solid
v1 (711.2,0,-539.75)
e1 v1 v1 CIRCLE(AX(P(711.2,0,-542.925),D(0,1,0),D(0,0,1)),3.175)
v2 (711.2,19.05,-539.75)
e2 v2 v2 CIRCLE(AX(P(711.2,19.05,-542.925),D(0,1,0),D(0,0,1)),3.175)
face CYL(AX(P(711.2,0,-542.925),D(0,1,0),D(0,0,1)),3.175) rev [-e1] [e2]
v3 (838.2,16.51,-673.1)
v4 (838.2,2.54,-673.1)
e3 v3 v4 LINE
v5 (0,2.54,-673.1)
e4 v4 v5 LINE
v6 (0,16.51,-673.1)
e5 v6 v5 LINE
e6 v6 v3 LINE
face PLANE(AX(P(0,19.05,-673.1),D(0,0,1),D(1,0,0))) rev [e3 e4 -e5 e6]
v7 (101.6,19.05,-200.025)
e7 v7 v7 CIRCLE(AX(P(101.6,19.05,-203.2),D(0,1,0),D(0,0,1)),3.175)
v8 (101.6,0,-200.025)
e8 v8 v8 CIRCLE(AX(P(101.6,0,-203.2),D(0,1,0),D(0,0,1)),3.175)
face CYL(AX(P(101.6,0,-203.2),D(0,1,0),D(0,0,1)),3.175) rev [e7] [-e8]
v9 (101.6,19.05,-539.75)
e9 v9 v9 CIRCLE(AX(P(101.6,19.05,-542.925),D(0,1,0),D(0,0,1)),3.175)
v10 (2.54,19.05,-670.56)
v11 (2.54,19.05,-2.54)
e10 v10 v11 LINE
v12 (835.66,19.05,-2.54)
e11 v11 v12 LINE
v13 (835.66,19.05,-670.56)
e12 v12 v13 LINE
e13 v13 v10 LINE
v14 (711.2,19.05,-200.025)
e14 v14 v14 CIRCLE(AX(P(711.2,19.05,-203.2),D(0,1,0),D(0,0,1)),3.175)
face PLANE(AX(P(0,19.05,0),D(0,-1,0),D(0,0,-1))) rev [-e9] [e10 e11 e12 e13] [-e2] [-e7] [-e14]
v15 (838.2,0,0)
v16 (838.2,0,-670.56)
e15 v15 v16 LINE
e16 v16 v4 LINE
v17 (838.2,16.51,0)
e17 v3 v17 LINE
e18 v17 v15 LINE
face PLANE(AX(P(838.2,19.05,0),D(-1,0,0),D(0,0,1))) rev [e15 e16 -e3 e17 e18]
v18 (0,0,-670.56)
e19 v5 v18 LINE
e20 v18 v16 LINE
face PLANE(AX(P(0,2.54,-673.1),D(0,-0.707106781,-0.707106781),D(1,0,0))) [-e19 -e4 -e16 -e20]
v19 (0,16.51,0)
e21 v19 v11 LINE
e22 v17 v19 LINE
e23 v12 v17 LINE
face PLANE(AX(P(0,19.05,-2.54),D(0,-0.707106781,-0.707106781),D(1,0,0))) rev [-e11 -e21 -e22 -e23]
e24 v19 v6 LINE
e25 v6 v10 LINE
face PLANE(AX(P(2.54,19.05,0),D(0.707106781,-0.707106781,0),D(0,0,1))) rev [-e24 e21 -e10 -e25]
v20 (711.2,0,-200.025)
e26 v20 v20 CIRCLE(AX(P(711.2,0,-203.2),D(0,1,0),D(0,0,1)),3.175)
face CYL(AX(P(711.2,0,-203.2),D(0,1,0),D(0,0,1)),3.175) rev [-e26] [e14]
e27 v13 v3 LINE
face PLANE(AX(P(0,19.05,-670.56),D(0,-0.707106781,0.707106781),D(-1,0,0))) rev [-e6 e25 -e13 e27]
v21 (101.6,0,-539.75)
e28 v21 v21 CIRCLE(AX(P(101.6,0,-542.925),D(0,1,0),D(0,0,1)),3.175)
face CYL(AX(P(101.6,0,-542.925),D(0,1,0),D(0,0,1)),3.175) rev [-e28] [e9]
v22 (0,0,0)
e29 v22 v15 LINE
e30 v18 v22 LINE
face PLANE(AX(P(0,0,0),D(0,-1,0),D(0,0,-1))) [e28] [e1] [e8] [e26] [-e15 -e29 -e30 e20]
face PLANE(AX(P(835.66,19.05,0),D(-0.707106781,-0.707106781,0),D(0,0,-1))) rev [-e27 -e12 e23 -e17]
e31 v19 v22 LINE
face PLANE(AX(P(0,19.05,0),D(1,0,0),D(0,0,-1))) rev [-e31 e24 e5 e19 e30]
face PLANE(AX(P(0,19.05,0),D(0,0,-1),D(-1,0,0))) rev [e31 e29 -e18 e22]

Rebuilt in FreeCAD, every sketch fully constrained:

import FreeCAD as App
import Part
import Sketcher
Q = App.Units.Quantity


def edges_at(feature, points):
    """Names of the edges that pass closest to the given points."""
    edges = feature.Shape.Edges
    near = lambda p: min(range(len(edges)), key=lambda i: edges[i].distToShape(Part.Vertex(*p))[0])
    return sorted({f"Edge{near(p) + 1}" for p in points})


def add_polygon(sketch, points):
    """Adds a closed chain of lines whose ends are joined by coincident constraints."""
    first, n = sketch.GeometryCount, len(points)
    for a, b in zip(points, points[1:] + points[:1]):
        sketch.addGeometry(Part.LineSegment(App.Vector(*a, 0), App.Vector(*b, 0)), False)
    for i in range(n):
        sketch.addConstraint(Sketcher.Constraint("Coincident", first + i, 2, first + (i + 1) % n, 1))

doc = App.newDocument("Part")
body = doc.addObject("PartDesign::Body", "Body")

sketch1 = doc.addObject("Sketcher::SketchObject", "Sketch")
body.addObject(sketch1)
sketch1.AttachmentSupport = (doc.XZ_Plane, [""])
sketch1.MapMode = "FlatFace"
add_polygon(sketch1, [(0, -673), (0, 0), (838, 0), (838, -673)])
sketch1.addConstraint([
    Sketcher.Constraint("Vertical", 0),
    Sketcher.Constraint("Horizontal", 1),
    Sketcher.Constraint("Vertical", 2),
    Sketcher.Constraint("Horizontal", 3),
    Sketcher.Constraint("Coincident", 0, 2, -1, 1),
    Sketcher.Constraint("DistanceX", 1, 1, 1, 2, Q("33 in")),
    Sketcher.Constraint("DistanceY", 0, 1, 0, 2, Q("26.5 in")),
])
pad1 = doc.addObject("PartDesign::Pad", "Pad")
body.addObject(pad1)
pad1.Profile = sketch1
pad1.Length = Q("0.75 in")
pad1.Reversed = True
doc.recompute()

chamfer = doc.addObject("PartDesign::Chamfer", "Chamfer")
body.addObject(chamfer)
chamfer.Base = (pad1, edges_at(pad1, [
    (838.2, 19.05, -336.55),
    (419.1, 19.05, -673.1),
    (0, 19.05, -336.55),
    (419.1, 19.05, 0),
]))
chamfer.Size = Q("0.1 in")
doc.recompute()

chamfer2 = doc.addObject("PartDesign::Chamfer", "Chamfer001")
body.addObject(chamfer2)
chamfer2.Base = (chamfer, edges_at(chamfer, [(419.1, 0, -673.1)]))
chamfer2.Size = Q("0.1 in")

sketch2 = doc.addObject("Sketcher::SketchObject", "Sketch001")
body.addObject(sketch2)
sketch2.AttachmentSupport = (doc.XZ_Plane, [""])
sketch2.MapMode = "FlatFace"
sketch2.AttachmentOffset = App.Placement(App.Vector(0, 0, -0.75 * 25.4), App.Rotation())
sketch2.addGeometry([
    Part.Circle(App.Vector(101.6, -542.9, 0), App.Vector(0, 0, 1), 3.2),
    Part.Circle(App.Vector(101.6, -203.2, 0), App.Vector(0, 0, 1), 3.2),
    Part.Circle(App.Vector(711.2, -542.9, 0), App.Vector(0, 0, 1), 3.2),
    Part.Circle(App.Vector(711.2, -203.2, 0), App.Vector(0, 0, 1), 3.2),
], False)
sketch2.addConstraint([
    Sketcher.Constraint("Equal", 0, 1),
    Sketcher.Constraint("Equal", 1, 2),
    Sketcher.Constraint("Equal", 2, 3),
    Sketcher.Constraint("Horizontal", 0, 3, 2, 3),
    Sketcher.Constraint("Horizontal", 1, 3, 3, 3),
    Sketcher.Constraint("Vertical", 0, 3, 1, 3),
    Sketcher.Constraint("Vertical", 2, 3, 3, 3),
    Sketcher.Constraint("Diameter", 0, Q("0.25 in")),
    Sketcher.Constraint("DistanceX", -1, 1, 0, 3, Q("4 in")),
    Sketcher.Constraint("DistanceY", 1, 3, -1, 1, Q("8 in")),
    Sketcher.Constraint("DistanceX", -1, 1, 2, 3, Q("28 in")),
    Sketcher.Constraint("DistanceY", 0, 3, -1, 1, Q("21.375 in")),
])
pocket1 = doc.addObject("PartDesign::Pocket", "Pocket")
body.addObject(pocket1)
pocket1.Profile = sketch2
pocket1.Type = "ThroughAll"
pocket1.Reversed = True

doc.recompute()
